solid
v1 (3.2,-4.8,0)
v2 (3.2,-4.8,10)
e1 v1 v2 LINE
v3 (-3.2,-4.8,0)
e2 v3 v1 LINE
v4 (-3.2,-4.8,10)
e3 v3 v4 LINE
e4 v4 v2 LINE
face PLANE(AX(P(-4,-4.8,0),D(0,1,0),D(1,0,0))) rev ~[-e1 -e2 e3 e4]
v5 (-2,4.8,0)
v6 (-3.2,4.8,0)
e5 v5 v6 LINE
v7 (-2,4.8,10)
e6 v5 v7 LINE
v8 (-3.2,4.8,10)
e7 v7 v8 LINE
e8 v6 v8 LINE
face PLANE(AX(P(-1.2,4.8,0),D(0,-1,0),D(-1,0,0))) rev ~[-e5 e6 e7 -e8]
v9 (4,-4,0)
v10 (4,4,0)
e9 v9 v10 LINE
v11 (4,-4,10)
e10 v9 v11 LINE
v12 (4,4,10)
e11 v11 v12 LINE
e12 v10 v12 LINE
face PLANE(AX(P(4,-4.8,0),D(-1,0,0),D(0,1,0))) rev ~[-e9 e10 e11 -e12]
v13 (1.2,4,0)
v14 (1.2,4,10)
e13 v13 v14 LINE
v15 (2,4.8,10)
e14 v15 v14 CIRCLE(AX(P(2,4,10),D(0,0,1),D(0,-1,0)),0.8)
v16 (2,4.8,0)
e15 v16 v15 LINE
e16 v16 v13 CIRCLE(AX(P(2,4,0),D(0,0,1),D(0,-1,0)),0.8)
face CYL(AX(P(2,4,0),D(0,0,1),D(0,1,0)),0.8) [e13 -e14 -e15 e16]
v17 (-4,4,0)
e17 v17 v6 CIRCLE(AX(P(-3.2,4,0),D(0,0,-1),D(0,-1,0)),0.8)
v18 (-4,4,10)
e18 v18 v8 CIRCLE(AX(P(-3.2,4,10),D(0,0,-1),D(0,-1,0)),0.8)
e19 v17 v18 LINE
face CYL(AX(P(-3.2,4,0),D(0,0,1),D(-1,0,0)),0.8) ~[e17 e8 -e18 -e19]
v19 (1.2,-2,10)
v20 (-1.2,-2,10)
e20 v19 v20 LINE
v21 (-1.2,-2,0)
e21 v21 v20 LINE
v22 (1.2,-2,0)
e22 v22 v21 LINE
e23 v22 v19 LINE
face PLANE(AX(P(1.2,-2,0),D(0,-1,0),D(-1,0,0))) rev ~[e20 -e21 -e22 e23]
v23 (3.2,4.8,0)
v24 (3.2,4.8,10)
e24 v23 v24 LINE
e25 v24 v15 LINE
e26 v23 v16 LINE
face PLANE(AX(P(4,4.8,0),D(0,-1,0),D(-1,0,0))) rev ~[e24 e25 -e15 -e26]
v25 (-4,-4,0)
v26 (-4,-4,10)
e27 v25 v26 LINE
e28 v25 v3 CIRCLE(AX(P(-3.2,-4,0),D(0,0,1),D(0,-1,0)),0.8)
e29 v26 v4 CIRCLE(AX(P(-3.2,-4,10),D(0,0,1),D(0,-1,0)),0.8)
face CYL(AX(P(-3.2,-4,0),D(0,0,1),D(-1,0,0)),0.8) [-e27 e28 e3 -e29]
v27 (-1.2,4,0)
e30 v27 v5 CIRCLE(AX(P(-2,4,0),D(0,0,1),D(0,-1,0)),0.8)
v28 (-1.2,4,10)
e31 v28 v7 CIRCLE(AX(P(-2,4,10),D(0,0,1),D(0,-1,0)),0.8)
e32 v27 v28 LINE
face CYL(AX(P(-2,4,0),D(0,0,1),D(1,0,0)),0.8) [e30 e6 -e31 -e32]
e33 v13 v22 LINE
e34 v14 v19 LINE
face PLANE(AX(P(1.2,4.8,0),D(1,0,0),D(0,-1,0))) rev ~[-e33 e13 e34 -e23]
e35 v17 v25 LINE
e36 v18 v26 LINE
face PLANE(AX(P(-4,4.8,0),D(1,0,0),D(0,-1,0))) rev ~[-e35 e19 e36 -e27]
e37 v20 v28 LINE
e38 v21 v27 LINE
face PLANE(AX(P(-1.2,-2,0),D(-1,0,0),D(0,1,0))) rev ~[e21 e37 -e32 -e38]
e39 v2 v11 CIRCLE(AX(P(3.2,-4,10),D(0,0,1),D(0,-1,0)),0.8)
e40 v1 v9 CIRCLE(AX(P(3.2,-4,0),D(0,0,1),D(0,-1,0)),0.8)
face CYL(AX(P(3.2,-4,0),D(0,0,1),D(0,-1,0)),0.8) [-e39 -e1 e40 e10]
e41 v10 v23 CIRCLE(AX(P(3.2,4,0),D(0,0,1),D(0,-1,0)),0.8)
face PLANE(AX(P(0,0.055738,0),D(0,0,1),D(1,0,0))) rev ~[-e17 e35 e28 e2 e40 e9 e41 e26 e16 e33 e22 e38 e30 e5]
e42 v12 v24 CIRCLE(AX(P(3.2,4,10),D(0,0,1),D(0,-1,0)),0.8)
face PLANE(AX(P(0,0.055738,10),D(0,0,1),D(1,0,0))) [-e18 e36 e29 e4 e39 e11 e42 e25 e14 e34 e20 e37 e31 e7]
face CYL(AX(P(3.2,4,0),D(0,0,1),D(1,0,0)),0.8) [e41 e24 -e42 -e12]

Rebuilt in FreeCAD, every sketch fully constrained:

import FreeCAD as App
import Part
import Sketcher
Q = App.Units.Quantity


def edges_at(feature, points):
    """Names of the edges that pass closest to the given points."""
    edges = feature.Shape.Edges
    near = lambda p: min(range(len(edges)), key=lambda i: edges[i].distToShape(Part.Vertex(*p))[0])
    return sorted({f"Edge{near(p) + 1}" for p in points})

doc = App.newDocument("Part")
body = doc.addObject("PartDesign::Body", "Body")

sketch1 = body.newObject("Sketcher::SketchObject", "Sketch")
sketch1.AttachmentSupport = (doc.getObject("XY_Plane"), [""])
sketch1.MapMode = "FlatFace"
sketch1.addGeometry([
    Part.LineSegment(App.Vector(-4, 4.8, 0), App.Vector(-4, -4.8, 0)),
    Part.LineSegment(App.Vector(-4, -4.8, 0), App.Vector(4, -4.8, 0)),
    Part.LineSegment(App.Vector(4, -4.8, 0), App.Vector(4, 4.8, 0)),
    Part.LineSegment(App.Vector(4, 4.8, 0), App.Vector(1.2, 4.8, 0)),
    Part.LineSegment(App.Vector(1.2, 4.8, 0), App.Vector(1.2, -2, 0)),
    Part.LineSegment(App.Vector(1.2, -2, 0), App.Vector(-1.2, -2, 0)),
    Part.LineSegment(App.Vector(-1.2, -2, 0), App.Vector(-1.2, 4.8, 0)),
    Part.LineSegment(App.Vector(-1.2, 4.8, 0), App.Vector(-4, 4.8, 0)),
], False)
sketch1.addConstraint([
    Sketcher.Constraint("Coincident", 0, 2, 1, 1),
    Sketcher.Constraint("Coincident", 1, 2, 2, 1),
    Sketcher.Constraint("Coincident", 2, 2, 3, 1),
    Sketcher.Constraint("Coincident", 3, 2, 4, 1),
    Sketcher.Constraint("Coincident", 4, 2, 5, 1),
    Sketcher.Constraint("Coincident", 5, 2, 6, 1),
    Sketcher.Constraint("Coincident", 6, 2, 7, 1),
    Sketcher.Constraint("Coincident", 7, 2, 0, 1),
    Sketcher.Constraint("Vertical", 0),
    Sketcher.Constraint("Horizontal", 1),
    Sketcher.Constraint("Vertical", 2),
    Sketcher.Constraint("Horizontal", 3),
    Sketcher.Constraint("Vertical", 4),
    Sketcher.Constraint("Horizontal", 5),
    Sketcher.Constraint("Vertical", 6),
    Sketcher.Constraint("Horizontal", 7),
    Sketcher.Constraint("Symmetric", 0, 2, 2, 2, -1, 1),
    Sketcher.Constraint("Symmetric", 3, 2, 6, 2, -2),
    Sketcher.Constraint("DistanceX", 1, 1, 1, 2, Q("8 mm")),
    Sketcher.Constraint("DistanceX", 3, 2, 3, 1, Q("2.8 mm")),
    Sketcher.Constraint("DistanceY", 0, 2, 0, 1, Q("9.6 mm")),
    Sketcher.Constraint("DistanceY", 4, 2, 4, 1, Q("6.8 mm")),
])
pad1 = body.newObject("PartDesign::Pad", "Pad")
pad1.Profile = sketch1
pad1.Length = 10
doc.recompute()

fillet = body.newObject("PartDesign::Fillet", "Fillet")
fillet.Base = (pad1, edges_at(pad1, [
    (-4, -4.8, 5),
    (4, -4.8, 5),
    (4, 4.8, 5),
    (1.2, 4.8, 5),
    (-4, 4.8, 5),
    (-1.2, 4.8, 5),
]))
fillet.Radius = 0.8

doc.recompute()
